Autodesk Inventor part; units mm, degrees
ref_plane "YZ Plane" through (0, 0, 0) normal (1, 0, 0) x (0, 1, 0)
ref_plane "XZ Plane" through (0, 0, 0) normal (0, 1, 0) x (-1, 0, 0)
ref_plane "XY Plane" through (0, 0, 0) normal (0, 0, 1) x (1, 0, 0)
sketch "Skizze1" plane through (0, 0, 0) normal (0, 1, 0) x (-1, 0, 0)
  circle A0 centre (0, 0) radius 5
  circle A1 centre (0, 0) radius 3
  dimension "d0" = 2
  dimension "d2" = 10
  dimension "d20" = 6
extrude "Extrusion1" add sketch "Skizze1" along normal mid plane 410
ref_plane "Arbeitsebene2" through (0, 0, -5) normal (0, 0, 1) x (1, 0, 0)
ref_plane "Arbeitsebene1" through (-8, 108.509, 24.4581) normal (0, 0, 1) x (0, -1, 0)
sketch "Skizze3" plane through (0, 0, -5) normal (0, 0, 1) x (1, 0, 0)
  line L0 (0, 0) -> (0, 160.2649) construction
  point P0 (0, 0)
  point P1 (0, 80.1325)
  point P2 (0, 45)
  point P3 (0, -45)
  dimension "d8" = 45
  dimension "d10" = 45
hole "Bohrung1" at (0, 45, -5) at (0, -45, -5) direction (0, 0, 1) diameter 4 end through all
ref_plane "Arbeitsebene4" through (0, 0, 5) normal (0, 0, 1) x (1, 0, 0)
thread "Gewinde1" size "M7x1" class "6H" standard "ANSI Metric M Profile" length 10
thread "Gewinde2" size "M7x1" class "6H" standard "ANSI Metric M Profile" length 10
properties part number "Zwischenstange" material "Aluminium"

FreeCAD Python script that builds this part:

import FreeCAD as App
import Part
import Sketcher

doc = App.newDocument("Part")
body = doc.addObject("PartDesign::Body", "Body")

# Sketch on XZ plane
sketch1 = body.newObject("Sketcher::SketchObject", "Sketch")
sketch1.AttachmentSupport = (doc.getObject("XZ_Plane"), [""])
sketch1.MapMode = "FlatFace"
sketch1.addGeometry(Part.Circle(App.Vector(0, 0, 0), App.Vector(0, 0, 1), 5), False)
sketch1.addGeometry(Part.Circle(App.Vector(0, 0, 0), App.Vector(0, 0, 1), 3), False)
sketch1.addConstraint(Sketcher.Constraint("Coincident", 0, 3, -1, 1))
sketch1.addConstraint(Sketcher.Constraint("Coincident", 1, 3, -1, 1))
sketch1.addConstraint(Sketcher.Constraint("Diameter", 0, 10.0))
sketch1.addConstraint(Sketcher.Constraint("Diameter", 1, 6.0))
pad1 = body.newObject("PartDesign::Pad", "Pad")
pad1.Profile = sketch1
pad1.Length = 410
pad1.Midplane = True

# Sketch on XY plane
sketch2 = body.newObject("Sketcher::SketchObject", "Sketch001")
sketch2.AttachmentSupport = (doc.getObject("XY_Plane"), [""])
sketch2.MapMode = "FlatFace"
sketch2.AttachmentOffset = App.Placement(App.Vector(0, 0, -5), App.Rotation())
sketch2.addGeometry(Part.Circle(App.Vector(0, 45, 0), App.Vector(0, 0, 1), 2), False)
sketch2.addGeometry(Part.Circle(App.Vector(0, -45, 0), App.Vector(0, 0, 1), 2), False)
sketch2.addConstraint(Sketcher.Constraint("Equal", 0, 1))
sketch2.addConstraint(Sketcher.Constraint("Symmetric", 0, 3, 1, 3, -1, 1))
sketch2.addConstraint(Sketcher.Constraint("PointOnObject", 0, 3, -2))
sketch2.addConstraint(Sketcher.Constraint("Diameter", 0, 4.0))
sketch2.addConstraint(Sketcher.Constraint("DistanceY", -1, 1, 0, 3, 45.0))
doc.recompute()
hole = body.newObject("PartDesign::Hole", "Hole")
hole.Profile = sketch2
hole.ThreadType = "None"
hole.Diameter = 4
hole.DepthType = "ThroughAll"
hole.Reversed = True

doc.recompute()
